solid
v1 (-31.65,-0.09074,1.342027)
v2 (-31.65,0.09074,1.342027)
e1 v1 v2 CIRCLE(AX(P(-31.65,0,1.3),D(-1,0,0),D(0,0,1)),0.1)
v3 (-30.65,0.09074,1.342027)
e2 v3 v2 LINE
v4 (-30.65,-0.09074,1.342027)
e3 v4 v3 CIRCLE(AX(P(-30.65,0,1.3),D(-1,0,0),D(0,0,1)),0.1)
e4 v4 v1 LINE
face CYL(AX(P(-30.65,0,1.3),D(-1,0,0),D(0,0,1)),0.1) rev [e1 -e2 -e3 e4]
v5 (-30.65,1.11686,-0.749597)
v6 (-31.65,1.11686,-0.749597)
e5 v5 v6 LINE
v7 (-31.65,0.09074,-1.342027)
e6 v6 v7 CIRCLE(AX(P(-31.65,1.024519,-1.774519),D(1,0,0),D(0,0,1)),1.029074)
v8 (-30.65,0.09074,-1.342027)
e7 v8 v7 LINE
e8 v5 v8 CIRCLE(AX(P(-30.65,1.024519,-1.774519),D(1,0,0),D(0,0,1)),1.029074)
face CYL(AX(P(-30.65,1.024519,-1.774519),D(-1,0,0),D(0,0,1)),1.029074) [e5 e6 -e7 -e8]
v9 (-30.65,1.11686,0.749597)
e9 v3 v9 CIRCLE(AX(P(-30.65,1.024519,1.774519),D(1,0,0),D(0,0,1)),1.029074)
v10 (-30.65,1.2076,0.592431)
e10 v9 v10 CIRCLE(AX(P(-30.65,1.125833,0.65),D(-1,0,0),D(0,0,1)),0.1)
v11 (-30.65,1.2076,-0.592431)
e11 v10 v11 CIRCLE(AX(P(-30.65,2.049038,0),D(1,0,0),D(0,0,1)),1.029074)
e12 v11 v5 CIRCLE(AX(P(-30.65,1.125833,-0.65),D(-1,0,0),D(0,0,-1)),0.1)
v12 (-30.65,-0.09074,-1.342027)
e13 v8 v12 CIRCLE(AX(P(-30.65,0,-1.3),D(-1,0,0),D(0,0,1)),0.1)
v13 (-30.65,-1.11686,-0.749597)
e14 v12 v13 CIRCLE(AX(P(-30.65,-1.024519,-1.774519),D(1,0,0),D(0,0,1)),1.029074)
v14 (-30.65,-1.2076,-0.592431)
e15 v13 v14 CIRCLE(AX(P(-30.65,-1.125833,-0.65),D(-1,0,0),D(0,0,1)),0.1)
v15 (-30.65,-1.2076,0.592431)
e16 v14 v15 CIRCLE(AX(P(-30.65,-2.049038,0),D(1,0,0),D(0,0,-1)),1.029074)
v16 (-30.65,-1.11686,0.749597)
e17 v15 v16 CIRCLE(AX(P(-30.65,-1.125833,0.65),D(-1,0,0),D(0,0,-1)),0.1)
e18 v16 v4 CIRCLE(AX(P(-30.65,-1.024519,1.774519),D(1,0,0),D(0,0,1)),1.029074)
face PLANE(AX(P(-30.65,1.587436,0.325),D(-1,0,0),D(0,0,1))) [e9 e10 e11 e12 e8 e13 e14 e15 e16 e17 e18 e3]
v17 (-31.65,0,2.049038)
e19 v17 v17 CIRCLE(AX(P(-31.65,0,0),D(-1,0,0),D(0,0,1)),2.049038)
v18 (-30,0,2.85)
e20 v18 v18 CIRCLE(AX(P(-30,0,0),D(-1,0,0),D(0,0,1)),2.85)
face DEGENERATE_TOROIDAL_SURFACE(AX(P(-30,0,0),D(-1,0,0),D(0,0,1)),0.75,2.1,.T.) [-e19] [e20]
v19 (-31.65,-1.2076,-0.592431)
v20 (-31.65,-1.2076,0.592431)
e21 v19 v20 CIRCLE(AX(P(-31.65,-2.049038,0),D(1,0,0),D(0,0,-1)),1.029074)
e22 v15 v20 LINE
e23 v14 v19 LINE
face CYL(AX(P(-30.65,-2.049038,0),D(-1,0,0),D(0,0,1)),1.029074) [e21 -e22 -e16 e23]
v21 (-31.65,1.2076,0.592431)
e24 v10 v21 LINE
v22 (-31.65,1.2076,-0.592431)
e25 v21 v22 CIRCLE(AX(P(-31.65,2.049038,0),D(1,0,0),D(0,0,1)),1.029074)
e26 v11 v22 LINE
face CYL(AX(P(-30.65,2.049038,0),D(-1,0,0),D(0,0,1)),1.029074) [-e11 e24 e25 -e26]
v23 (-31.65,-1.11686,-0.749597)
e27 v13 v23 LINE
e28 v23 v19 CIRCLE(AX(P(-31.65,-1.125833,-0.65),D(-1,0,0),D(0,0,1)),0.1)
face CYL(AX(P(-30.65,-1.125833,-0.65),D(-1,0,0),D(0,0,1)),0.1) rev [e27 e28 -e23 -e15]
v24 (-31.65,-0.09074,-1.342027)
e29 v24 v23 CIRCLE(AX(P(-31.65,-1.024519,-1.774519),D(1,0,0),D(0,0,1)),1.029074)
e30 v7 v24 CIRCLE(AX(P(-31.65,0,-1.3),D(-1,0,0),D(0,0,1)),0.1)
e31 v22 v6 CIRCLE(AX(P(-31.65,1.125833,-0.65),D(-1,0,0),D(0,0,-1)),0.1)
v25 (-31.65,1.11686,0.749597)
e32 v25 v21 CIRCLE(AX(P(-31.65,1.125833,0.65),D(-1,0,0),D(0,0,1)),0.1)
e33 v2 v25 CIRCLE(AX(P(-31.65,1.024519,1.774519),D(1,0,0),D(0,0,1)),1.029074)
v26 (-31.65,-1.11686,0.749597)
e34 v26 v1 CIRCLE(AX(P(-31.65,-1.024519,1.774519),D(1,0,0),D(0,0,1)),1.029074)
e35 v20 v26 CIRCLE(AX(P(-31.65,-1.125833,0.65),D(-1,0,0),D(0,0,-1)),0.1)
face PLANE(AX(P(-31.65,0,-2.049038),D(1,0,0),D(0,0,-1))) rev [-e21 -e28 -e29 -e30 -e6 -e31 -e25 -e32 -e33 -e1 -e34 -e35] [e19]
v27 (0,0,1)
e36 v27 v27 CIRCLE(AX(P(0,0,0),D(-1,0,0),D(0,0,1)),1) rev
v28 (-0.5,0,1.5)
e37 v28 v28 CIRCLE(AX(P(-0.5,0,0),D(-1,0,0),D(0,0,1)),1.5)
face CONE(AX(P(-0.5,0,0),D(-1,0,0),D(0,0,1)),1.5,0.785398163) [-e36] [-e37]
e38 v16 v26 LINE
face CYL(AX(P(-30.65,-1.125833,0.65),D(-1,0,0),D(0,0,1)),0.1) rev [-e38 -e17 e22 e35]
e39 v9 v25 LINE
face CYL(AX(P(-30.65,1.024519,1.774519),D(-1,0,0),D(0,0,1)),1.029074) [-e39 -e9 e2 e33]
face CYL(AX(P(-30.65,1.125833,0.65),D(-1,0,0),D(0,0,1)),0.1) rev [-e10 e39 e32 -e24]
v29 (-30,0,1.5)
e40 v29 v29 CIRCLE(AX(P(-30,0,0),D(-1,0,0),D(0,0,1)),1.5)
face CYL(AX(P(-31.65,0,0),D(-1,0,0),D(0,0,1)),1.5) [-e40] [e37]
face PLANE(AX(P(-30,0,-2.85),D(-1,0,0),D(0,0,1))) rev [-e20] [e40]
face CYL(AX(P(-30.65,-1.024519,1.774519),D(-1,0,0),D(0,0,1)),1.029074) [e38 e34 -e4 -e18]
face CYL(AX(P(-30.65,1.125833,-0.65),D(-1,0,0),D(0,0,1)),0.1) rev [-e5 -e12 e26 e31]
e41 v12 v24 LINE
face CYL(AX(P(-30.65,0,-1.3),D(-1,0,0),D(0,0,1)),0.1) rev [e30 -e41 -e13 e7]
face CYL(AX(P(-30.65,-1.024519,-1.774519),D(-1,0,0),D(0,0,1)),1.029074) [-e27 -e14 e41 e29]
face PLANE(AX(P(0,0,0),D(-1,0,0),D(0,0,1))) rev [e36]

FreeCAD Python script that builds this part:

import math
import FreeCAD as App
import Part
import Sketcher

V = App.Vector
Q = App.Units.Quantity


def edges_at(feature, points):
    """Names of the edges that pass closest to the given points."""
    edges = feature.Shape.Edges
    near = lambda p: min(range(len(edges)), key=lambda i: edges[i].distToShape(Part.Vertex(*p))[0])
    return sorted({f"Edge{near(p) + 1}" for p in points})

doc = App.newDocument("Part")
body = doc.addObject("PartDesign::Body", "Body")

sketch1 = body.newObject("Sketcher::SketchObject", "Sketch")
sketch1.AttachmentSupport = (doc.getObject("XZ_Plane"), [""])
sketch1.MapMode = "FlatFace"
sketch1.addGeometry([
    Part.LineSegment(V(0, 0, 0), V(0, -1.5, 0)),
    Part.LineSegment(V(0, -1.5, 0), V(-30, -1.5, 0)),
    Part.LineSegment(V(-30, -1.5, 0), V(-30, -2.9, 0)),
    Part.ArcOfCircle(Part.Circle(V(-30, -0.7, 0), V(0, 0, 1), 2.1), math.radians(-142), math.radians(-90)),
    Part.LineSegment(V(-31.6, -2, 0), V(-31.6, 0, 0)),
    Part.LineSegment(V(-31.6, 0, 0), V(0, 0, 0)),
], False)
sketch1.addConstraint([
    Sketcher.Constraint("Coincident", 0, 2, 1, 1),
    Sketcher.Constraint("Coincident", 1, 2, 2, 1),
    Sketcher.Constraint("Coincident", 2, 2, 3, 2),
    Sketcher.Constraint("Coincident", 3, 1, 4, 1),
    Sketcher.Constraint("Coincident", 4, 2, 5, 1),
    Sketcher.Constraint("Coincident", 5, 2, 0, 1),
    Sketcher.Constraint("Vertical", 0),
    Sketcher.Constraint("Horizontal", 1),
    Sketcher.Constraint("Vertical", 2),
    Sketcher.Constraint("Vertical", 4),
    Sketcher.Constraint("Horizontal", 5),
    Sketcher.Constraint("Coincident", 5, 2, -1, 1),
    Sketcher.Constraint("Vertical", 3, 3, 1, 2),
    Sketcher.Constraint("Radius", 3, Q("2.1 mm")),
    Sketcher.Constraint("DistanceX", 1, 2, 1, 1, Q("30 mm")),
    Sketcher.Constraint("DistanceY", 0, 2, 0, 1, Q("1.5 mm")),
    Sketcher.Constraint("DistanceX", 5, 1, 5, 2, Q("31.65 mm")),
    Sketcher.Constraint("DistanceY", 2, 2, 2, 1, Q("1.35 mm")),
])
revolution = body.newObject("PartDesign::Revolution", "Revolution")
revolution.Profile = sketch1
revolution.ReferenceAxis = (sketch1, ["H_Axis"])
revolution.Angle = 360
doc.recompute()

chamfer = body.newObject("PartDesign::Chamfer", "Chamfer")
chamfer.Base = (revolution, edges_at(revolution, [(0, 0, -1.5)]))
chamfer.Size = 0.5

sketch2 = body.newObject("Sketcher::SketchObject", "Sketch001")
sketch2.AttachmentSupport = (doc.getObject("YZ_Plane"), [""])
sketch2.MapMode = "FlatFace"
sketch2.AttachmentOffset = App.Placement(V(0, 0, -31.65), App.Rotation())
sketch2.addGeometry([
    Part.ArcOfCircle(Part.Circle(V(1.02, -1.77, 0), V(0, 0, 1), 1.03), math.radians(85), math.radians(155)),
    Part.ArcOfCircle(Part.Circle(V(0, -1.3, 0), V(0, 0, 1), 0.1), math.radians(-155), math.radians(-25)),
    Part.ArcOfCircle(Part.Circle(V(-1.02, -1.77, 0), V(0, 0, 1), 1.03), math.radians(25), math.radians(95)),
    Part.ArcOfCircle(Part.Circle(V(-1.13, -0.65, 0), V(0, 0, 1), 0.1), math.radians(145), math.radians(275)),
    Part.ArcOfCircle(Part.Circle(V(-2.05, 0, 0), V(0, 0, 1), 1.03), math.radians(-35), math.radians(35)),
    Part.ArcOfCircle(Part.Circle(V(-1.13, 0.65, 0), V(0, 0, 1), 0.1), math.radians(85), math.radians(215)),
    Part.ArcOfCircle(Part.Circle(V(-1.02, 1.77, 0), V(0, 0, 1), 1.03), math.radians(-95), math.radians(-25)),
    Part.ArcOfCircle(Part.Circle(V(0, 1.3, 0), V(0, 0, 1), 0.1), math.radians(25), math.radians(155)),
    Part.ArcOfCircle(Part.Circle(V(1.02, 1.77, 0), V(0, 0, 1), 1.03), math.radians(-155), math.radians(-85)),
    Part.ArcOfCircle(Part.Circle(V(1.13, 0.65, 0), V(0, 0, 1), 0.1), math.radians(-35), math.radians(95)),
    Part.ArcOfCircle(Part.Circle(V(2.05, 0, 0), V(0, 0, 1), 1.03), math.radians(145), math.radians(215)),
    Part.ArcOfCircle(Part.Circle(V(1.13, -0.65, 0), V(0, 0, 1), 0.1), math.radians(-95), math.radians(35)),
], False)
sketch2.addConstraint([
    Sketcher.Constraint("Tangent", 0, 2, 1, 2),
    Sketcher.Constraint("Tangent", 1, 1, 2, 1),
    Sketcher.Constraint("Tangent", 2, 2, 3, 2),
    Sketcher.Constraint("Tangent", 3, 1, 4, 1),
    Sketcher.Constraint("Tangent", 4, 2, 5, 2),
    Sketcher.Constraint("Tangent", 5, 1, 6, 1),
    Sketcher.Constraint("Tangent", 6, 2, 7, 2),
    Sketcher.Constraint("Tangent", 7, 1, 8, 1),
    Sketcher.Constraint("Tangent", 8, 2, 9, 2),
    Sketcher.Constraint("Tangent", 9, 1, 10, 1),
    Sketcher.Constraint("Tangent", 10, 2, 11, 2),
    Sketcher.Constraint("Tangent", 11, 1, 0, 1),
    Sketcher.Constraint("Equal", 0, 2),
    Sketcher.Constraint("Equal", 1, 3),
    Sketcher.Constraint("Equal", 2, 4),
    Sketcher.Constraint("Equal", 3, 5),
    Sketcher.Constraint("Equal", 4, 6),
    Sketcher.Constraint("Equal", 5, 7),
    Sketcher.Constraint("Equal", 6, 8),
    Sketcher.Constraint("Equal", 7, 9),
    Sketcher.Constraint("Equal", 8, 10),
    Sketcher.Constraint("Equal", 9, 11),
    Sketcher.Constraint("Symmetric", 0, 3, 6, 3, -1, 1),
    Sketcher.Constraint("Symmetric", 2, 3, 8, 3, -1, 1),
    Sketcher.Constraint("Symmetric", 4, 3, 10, 3, -1, 1),
    Sketcher.Constraint("Symmetric", 0, 3, 2, 3, -2),
    Sketcher.Constraint("PointOnObject", 4, 3, -1),
    Sketcher.Constraint("Radius", 1, Q("0.1 mm")),
    Sketcher.Constraint("DistanceY", 1, 3, -1, 1, Q("1.3 mm")),
    Sketcher.Constraint("DistanceY", 3, 3, 5, 3, Q("1.3 mm")),
    Sketcher.Constraint("Radius", 0, Q("1.029074 mm")),
    Sketcher.Constraint("DistanceX", 3, 1, -1, 1, Q("1.2076 mm")),
])
pocket1 = body.newObject("PartDesign::Pocket", "Pocket")
pocket1.Profile = sketch2
pocket1.Length = 1
pocket1.Reversed = True

doc.recompute()
